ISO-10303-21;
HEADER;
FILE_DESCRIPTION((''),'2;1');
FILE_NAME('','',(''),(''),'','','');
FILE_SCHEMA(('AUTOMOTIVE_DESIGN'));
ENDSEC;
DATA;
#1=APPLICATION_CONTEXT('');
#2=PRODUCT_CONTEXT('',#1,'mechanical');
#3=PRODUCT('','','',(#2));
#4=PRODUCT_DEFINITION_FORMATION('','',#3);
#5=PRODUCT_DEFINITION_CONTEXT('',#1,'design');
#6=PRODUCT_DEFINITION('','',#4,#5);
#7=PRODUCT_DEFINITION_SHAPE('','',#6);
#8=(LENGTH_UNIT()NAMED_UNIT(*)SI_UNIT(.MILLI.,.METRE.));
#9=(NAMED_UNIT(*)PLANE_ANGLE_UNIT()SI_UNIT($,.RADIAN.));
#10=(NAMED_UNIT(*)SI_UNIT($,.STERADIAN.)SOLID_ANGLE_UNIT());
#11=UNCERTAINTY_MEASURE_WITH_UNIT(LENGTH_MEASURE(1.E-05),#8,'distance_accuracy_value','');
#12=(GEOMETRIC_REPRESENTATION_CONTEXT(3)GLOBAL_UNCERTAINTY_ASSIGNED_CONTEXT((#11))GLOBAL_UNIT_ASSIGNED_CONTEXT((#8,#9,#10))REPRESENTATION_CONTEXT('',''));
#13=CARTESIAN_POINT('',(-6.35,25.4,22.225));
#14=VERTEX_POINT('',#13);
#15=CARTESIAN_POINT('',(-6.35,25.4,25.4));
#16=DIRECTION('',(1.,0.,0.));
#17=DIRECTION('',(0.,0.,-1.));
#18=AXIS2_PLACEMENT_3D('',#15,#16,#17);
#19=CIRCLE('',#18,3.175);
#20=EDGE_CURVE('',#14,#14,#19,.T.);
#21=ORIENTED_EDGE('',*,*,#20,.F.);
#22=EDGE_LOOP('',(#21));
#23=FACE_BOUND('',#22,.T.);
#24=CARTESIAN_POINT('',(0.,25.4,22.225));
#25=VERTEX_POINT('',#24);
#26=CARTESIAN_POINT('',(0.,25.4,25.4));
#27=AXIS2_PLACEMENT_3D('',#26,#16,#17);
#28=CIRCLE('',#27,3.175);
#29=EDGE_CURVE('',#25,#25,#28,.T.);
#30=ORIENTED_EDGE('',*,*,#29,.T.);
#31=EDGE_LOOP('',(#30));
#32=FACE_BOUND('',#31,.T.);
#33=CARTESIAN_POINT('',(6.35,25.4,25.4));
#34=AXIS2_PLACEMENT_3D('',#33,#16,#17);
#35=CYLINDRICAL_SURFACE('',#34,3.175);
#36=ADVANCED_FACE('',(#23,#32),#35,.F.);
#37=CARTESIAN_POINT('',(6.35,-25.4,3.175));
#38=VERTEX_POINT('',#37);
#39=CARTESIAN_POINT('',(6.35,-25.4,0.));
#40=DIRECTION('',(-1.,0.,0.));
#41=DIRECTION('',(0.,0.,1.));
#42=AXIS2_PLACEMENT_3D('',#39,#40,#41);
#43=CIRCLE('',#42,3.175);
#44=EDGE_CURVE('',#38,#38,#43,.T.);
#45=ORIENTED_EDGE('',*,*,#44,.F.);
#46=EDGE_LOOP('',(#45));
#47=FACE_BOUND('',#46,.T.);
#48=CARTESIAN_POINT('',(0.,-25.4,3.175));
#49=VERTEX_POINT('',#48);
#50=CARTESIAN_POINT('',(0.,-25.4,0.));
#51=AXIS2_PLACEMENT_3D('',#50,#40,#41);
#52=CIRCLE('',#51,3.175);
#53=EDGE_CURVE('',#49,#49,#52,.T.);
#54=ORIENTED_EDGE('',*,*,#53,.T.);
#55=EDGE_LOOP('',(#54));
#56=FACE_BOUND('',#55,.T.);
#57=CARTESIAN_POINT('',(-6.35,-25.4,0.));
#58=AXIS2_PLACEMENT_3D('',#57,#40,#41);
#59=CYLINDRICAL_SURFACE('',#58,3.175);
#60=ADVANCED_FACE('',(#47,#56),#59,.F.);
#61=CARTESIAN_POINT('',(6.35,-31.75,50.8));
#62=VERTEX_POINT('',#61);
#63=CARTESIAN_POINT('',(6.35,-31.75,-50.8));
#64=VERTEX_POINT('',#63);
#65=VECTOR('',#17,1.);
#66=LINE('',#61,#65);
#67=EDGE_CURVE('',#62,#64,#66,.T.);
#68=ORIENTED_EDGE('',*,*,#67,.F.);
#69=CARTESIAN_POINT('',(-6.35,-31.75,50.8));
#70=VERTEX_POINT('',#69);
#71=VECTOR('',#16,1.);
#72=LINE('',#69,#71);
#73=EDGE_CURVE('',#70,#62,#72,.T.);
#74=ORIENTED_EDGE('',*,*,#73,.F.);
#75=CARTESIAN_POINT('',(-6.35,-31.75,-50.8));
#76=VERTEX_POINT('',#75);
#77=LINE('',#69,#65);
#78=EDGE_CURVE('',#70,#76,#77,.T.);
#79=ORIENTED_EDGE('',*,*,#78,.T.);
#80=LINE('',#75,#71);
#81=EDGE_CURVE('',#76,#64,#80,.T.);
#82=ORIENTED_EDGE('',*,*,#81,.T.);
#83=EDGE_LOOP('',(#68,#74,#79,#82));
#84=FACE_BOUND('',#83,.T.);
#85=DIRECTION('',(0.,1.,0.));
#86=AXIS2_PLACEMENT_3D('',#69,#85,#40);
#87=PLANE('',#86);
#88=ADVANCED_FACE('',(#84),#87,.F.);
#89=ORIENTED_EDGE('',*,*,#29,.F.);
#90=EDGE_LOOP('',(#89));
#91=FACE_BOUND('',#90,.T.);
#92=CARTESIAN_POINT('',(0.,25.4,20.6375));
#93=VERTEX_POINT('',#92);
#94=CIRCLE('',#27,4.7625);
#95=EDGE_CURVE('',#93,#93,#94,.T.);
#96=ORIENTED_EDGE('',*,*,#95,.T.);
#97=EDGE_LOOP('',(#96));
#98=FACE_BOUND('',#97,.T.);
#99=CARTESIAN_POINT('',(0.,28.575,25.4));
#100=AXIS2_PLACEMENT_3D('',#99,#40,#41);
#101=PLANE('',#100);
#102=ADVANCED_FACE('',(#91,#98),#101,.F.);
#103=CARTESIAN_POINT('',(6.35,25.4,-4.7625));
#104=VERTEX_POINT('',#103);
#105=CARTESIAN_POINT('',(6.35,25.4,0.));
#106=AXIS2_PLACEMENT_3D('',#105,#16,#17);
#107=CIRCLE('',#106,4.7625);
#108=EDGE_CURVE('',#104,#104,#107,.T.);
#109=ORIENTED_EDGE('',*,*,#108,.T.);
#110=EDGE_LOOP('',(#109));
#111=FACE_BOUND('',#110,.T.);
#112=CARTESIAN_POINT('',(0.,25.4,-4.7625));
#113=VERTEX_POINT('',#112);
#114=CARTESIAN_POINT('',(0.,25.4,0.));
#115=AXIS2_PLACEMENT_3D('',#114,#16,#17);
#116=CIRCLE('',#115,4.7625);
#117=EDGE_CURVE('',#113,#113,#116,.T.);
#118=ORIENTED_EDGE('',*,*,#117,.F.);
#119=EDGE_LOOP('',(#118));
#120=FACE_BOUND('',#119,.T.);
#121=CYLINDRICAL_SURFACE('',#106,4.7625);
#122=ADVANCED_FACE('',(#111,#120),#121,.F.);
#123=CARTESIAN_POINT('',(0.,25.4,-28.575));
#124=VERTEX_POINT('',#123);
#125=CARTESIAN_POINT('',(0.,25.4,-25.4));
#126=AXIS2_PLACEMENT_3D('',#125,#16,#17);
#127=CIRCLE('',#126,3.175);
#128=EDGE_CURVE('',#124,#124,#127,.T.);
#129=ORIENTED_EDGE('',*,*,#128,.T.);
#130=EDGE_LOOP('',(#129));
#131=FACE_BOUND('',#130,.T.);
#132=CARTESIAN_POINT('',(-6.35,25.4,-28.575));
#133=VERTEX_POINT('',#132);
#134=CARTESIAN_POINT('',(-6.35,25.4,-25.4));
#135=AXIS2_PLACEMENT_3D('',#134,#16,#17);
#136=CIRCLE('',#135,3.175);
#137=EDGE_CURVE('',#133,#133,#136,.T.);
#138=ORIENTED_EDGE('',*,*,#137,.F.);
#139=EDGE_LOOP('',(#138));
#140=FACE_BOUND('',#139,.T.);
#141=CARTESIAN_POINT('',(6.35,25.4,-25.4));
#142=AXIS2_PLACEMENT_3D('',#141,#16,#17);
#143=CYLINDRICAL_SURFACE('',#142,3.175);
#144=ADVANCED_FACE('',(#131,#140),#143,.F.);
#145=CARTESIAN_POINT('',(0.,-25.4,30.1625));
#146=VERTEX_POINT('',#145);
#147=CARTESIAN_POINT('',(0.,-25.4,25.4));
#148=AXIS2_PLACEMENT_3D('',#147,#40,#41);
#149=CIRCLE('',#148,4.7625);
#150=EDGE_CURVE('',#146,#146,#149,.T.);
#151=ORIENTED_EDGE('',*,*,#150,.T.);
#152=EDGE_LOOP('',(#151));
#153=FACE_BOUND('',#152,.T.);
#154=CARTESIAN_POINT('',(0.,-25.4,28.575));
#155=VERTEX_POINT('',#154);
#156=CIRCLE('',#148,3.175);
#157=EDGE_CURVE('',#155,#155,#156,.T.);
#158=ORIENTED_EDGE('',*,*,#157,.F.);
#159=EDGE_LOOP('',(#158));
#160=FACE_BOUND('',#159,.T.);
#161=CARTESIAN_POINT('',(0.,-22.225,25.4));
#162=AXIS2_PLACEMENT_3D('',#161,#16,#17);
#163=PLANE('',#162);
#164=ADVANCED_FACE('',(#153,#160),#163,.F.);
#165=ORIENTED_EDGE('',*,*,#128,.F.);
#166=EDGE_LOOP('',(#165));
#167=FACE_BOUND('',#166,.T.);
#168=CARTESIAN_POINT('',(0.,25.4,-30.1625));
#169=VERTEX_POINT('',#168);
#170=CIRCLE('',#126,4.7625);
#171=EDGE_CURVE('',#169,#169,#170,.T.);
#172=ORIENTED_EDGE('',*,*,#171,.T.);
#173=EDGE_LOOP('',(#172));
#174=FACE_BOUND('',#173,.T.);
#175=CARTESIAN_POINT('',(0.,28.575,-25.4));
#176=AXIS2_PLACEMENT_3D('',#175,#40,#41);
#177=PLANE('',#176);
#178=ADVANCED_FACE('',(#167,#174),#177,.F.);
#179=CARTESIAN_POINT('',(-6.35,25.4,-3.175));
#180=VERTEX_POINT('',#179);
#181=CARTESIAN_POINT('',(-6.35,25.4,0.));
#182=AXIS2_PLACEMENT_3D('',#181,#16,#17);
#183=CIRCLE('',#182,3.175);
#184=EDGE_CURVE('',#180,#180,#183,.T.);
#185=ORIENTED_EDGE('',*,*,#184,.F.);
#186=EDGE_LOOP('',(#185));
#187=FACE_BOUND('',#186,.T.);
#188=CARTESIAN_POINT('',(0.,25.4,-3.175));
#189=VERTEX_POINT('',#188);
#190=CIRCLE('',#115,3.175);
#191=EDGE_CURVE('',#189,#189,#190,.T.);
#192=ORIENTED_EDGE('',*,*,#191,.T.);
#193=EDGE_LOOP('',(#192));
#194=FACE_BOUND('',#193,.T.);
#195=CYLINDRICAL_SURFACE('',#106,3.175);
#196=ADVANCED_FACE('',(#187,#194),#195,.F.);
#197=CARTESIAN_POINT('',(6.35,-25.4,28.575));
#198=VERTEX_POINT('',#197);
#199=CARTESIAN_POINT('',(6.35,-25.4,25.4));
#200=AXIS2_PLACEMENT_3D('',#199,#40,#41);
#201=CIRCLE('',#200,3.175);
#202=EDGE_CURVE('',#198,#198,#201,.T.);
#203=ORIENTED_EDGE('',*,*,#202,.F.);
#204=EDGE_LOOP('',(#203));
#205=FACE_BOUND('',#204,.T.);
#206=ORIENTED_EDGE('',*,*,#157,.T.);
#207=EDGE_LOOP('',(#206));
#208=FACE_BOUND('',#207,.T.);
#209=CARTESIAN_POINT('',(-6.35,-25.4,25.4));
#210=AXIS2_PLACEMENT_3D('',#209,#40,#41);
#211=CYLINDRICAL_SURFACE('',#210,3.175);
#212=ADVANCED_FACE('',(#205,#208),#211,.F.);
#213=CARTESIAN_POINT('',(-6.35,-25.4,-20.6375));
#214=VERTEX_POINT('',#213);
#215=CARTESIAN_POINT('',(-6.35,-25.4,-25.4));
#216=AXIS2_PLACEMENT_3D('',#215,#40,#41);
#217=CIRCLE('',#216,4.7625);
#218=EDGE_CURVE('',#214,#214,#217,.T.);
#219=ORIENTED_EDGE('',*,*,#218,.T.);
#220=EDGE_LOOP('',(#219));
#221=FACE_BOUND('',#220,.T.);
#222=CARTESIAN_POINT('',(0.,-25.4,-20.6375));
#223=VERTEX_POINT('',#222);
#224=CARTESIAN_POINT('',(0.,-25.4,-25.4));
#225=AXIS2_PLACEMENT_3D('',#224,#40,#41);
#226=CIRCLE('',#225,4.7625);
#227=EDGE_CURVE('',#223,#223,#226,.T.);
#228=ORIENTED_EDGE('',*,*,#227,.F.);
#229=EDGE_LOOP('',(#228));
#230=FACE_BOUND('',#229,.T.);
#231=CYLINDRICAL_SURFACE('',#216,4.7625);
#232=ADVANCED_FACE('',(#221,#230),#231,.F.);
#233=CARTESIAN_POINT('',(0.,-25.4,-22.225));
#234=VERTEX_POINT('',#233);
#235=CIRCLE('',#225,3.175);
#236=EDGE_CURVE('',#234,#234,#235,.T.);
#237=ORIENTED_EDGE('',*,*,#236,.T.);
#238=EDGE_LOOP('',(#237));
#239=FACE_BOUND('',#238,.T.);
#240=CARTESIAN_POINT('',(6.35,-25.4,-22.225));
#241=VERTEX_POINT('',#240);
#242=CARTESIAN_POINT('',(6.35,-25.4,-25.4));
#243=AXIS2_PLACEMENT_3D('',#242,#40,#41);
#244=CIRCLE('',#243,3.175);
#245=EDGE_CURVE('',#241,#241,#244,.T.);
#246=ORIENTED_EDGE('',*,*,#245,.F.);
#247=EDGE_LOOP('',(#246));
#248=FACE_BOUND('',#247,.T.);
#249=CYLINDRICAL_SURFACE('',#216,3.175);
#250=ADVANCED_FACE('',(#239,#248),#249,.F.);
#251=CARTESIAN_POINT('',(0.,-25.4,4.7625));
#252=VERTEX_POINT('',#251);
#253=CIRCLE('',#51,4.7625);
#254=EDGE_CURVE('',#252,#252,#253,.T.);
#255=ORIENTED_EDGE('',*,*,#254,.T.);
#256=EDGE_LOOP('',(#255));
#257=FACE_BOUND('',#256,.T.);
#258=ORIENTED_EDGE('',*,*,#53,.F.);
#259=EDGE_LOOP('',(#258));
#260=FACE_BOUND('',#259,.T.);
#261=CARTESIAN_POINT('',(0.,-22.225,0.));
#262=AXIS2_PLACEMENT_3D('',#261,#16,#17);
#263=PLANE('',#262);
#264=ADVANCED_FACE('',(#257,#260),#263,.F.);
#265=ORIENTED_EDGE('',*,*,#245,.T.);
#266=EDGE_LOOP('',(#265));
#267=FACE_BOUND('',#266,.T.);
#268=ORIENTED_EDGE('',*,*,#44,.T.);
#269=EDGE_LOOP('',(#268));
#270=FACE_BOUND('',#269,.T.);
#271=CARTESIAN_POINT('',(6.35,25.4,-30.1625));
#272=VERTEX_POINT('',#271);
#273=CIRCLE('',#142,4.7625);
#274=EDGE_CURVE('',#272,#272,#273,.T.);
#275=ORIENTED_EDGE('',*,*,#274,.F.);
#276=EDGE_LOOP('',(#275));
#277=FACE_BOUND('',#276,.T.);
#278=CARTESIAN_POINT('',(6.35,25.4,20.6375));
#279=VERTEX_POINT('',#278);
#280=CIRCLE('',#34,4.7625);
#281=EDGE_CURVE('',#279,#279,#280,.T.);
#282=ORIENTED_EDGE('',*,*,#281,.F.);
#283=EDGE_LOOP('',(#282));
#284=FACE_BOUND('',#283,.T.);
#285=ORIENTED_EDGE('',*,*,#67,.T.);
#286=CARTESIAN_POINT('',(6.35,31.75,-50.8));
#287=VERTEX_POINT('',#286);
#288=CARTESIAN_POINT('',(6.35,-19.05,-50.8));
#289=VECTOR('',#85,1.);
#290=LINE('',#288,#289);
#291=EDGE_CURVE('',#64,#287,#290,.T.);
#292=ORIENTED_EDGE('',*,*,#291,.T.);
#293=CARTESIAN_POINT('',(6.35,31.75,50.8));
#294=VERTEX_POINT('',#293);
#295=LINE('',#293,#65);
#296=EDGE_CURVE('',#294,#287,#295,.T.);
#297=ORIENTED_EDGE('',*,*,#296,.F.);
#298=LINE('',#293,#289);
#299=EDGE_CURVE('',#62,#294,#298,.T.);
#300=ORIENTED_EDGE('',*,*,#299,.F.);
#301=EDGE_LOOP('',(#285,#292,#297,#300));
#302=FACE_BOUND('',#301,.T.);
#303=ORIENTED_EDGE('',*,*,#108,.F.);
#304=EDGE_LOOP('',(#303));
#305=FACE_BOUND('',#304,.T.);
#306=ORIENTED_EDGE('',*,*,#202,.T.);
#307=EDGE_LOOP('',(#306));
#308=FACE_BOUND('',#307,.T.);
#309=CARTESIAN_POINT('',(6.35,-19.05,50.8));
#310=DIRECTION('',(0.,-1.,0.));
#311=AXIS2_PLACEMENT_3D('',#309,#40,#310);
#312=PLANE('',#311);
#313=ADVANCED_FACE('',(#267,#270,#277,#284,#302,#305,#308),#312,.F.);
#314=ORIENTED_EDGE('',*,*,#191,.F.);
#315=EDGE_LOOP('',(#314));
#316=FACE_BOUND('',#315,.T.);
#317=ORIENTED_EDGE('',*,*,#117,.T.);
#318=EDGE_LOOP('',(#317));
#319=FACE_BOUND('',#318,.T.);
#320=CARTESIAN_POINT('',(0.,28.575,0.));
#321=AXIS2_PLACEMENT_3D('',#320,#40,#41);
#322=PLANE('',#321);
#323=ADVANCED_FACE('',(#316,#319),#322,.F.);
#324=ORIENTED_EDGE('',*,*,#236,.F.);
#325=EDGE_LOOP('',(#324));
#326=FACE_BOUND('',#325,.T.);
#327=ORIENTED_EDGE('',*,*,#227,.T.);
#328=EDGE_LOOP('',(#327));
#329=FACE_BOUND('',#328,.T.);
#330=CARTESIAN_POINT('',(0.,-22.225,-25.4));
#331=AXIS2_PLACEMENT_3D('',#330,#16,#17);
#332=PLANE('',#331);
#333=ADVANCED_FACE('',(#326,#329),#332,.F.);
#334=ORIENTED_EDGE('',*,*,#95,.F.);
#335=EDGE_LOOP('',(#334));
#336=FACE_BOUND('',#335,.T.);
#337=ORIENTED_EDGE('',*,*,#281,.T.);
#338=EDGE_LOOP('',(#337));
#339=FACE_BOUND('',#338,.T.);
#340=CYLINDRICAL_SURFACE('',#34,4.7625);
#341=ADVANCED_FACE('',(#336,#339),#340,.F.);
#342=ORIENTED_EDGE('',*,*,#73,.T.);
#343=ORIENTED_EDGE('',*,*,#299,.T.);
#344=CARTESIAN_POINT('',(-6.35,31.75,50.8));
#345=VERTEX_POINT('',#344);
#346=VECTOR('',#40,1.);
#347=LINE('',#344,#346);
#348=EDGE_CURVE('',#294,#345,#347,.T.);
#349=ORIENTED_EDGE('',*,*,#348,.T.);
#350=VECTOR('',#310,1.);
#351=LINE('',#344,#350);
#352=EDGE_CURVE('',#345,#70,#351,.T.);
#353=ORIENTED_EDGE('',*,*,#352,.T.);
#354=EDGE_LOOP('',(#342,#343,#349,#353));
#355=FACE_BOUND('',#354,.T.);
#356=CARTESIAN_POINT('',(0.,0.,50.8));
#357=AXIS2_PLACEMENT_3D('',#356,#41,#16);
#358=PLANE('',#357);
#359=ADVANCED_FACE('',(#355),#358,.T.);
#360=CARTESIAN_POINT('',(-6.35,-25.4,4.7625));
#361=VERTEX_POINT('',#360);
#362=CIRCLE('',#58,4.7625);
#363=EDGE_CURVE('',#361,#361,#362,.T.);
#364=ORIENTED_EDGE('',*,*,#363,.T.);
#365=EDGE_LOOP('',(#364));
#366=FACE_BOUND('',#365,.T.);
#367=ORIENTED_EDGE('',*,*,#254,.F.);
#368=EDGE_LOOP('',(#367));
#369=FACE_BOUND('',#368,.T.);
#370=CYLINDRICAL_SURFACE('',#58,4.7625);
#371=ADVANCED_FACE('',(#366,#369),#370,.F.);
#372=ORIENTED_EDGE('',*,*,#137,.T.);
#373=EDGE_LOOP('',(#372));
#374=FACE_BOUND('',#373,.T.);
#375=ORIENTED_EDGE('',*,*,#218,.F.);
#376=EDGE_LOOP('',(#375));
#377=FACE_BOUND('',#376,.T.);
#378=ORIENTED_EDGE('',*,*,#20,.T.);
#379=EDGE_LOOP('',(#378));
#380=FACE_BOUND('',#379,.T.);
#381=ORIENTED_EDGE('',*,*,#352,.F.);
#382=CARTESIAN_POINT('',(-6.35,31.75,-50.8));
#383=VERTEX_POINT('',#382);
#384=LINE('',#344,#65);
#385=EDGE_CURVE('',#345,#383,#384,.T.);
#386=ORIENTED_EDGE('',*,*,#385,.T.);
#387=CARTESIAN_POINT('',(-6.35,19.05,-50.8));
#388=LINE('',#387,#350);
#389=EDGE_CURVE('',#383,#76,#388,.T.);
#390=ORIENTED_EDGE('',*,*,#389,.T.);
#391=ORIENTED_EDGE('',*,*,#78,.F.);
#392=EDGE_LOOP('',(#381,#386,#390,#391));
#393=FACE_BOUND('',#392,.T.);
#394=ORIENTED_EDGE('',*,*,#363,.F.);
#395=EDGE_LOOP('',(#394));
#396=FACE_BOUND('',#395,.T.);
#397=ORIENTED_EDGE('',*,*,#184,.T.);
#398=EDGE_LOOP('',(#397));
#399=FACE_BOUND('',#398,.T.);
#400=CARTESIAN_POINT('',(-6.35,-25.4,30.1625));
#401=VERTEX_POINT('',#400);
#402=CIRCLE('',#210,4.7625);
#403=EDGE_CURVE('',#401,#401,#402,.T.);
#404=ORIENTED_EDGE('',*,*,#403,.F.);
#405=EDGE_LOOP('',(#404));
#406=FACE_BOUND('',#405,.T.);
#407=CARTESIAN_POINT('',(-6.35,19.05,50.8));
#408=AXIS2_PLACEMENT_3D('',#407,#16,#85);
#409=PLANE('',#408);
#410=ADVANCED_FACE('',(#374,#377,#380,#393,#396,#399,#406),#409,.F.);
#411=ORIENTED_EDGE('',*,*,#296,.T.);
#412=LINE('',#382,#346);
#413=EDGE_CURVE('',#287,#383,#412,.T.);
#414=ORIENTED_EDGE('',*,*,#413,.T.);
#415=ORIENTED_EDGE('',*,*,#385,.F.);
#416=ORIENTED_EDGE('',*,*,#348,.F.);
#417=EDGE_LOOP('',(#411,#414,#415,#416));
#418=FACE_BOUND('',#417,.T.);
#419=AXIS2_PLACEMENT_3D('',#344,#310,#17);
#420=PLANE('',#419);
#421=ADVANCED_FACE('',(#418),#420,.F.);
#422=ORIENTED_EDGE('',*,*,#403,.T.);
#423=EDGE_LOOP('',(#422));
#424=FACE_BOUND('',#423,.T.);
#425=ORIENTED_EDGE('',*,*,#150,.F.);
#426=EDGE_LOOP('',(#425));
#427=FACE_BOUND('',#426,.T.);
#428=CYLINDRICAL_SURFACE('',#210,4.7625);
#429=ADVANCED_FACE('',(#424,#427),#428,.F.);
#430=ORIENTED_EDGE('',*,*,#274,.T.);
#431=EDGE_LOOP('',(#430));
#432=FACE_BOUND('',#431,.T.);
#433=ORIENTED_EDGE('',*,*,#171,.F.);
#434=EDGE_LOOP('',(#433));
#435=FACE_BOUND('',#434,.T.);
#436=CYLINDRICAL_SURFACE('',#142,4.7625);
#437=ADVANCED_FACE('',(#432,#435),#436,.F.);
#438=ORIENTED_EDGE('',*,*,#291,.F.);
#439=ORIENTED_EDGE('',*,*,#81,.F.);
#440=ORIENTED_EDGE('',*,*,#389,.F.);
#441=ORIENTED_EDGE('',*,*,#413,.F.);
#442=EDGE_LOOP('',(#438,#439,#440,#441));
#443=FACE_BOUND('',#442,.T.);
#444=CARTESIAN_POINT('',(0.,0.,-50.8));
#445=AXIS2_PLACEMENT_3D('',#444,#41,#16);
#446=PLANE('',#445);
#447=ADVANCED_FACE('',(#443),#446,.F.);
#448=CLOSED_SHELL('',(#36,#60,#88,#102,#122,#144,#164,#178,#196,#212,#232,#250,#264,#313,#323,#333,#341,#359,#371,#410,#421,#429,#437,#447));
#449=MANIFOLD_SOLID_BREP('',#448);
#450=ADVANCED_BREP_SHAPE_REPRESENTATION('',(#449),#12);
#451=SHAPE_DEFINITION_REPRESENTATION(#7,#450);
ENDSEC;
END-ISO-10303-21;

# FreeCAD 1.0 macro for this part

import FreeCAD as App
import Part
import Sketcher

V = App.Vector
Q = App.Units.Quantity

doc = App.newDocument("Part")
body = doc.addObject("PartDesign::Body", "Body")

# Sketch on XY plane
sketch1 = body.newObject("Sketcher::SketchObject", "Sketch")
sketch1.AttachmentSupport = (doc.getObject("XY_Plane"), [""])
sketch1.MapMode = "FlatFace"
sketch1.addGeometry(Part.LineSegment(V(6.35, 31.75, 0), V(-6.35, 31.75, 0)), False)
sketch1.addGeometry(Part.LineSegment(V(-6.35, 31.75, 0), V(-6.35, -31.75, 0)), False)
sketch1.addGeometry(Part.LineSegment(V(-6.35, -31.75, 0), V(6.35, -31.75, 0)), False)
sketch1.addGeometry(Part.LineSegment(V(6.35, -31.75, 0), V(6.35, 31.75, 0)), False)
sketch1.addConstraint(Sketcher.Constraint("Coincident", 0, 2, 1, 1))
sketch1.addConstraint(Sketcher.Constraint("Coincident", 1, 2, 2, 1))
sketch1.addConstraint(Sketcher.Constraint("Coincident", 2, 2, 3, 1))
sketch1.addConstraint(Sketcher.Constraint("Coincident", 3, 2, 0, 1))
sketch1.addConstraint(Sketcher.Constraint("Horizontal", 0))
sketch1.addConstraint(Sketcher.Constraint("Vertical", 1))
sketch1.addConstraint(Sketcher.Constraint("Horizontal", 2))
sketch1.addConstraint(Sketcher.Constraint("Vertical", 3))
sketch1.addConstraint(Sketcher.Constraint("Symmetric", 0, 2, 2, 2, -1, 1))
sketch1.addConstraint(Sketcher.Constraint("DistanceX", 0, 2, 0, 1, Q("0.5 in")))
sketch1.addConstraint(Sketcher.Constraint("DistanceY", 1, 2, 1, 1, Q("2.5 in")))
pad1 = body.newObject("PartDesign::Pad", "Pad")
pad1.Profile = sketch1
pad1.Length = Q("4 in")
pad1.Midplane = True

# Sketch on YZ plane
sketch2 = body.newObject("Sketcher::SketchObject", "Sketch001")
sketch2.AttachmentSupport = (doc.getObject("YZ_Plane"), [""])
sketch2.MapMode = "FlatFace"
sketch2.AttachmentOffset = App.Placement(V(0, 0, -0.25 * 25.4), App.Rotation())
sketch2.addGeometry(Part.Circle(V(-25.4, -25.4, 0), V(0, 0, 1), 3.175), False)
sketch2.addGeometry(Part.Circle(V(-25.4, 0, 0), V(0, 0, 1), 3.175), False)
sketch2.addGeometry(Part.Circle(V(-25.4, 25.4, 0), V(0, 0, 1), 3.175), False)
sketch2.addConstraint(Sketcher.Constraint("Equal", 0, 1))
sketch2.addConstraint(Sketcher.Constraint("Equal", 1, 2))
sketch2.addConstraint(Sketcher.Constraint("Symmetric", 0, 3, 2, 3, -1))
sketch2.addConstraint(Sketcher.Constraint("PointOnObject", 1, 3, -1))
sketch2.addConstraint(Sketcher.Constraint("Vertical", 0, 3, 1, 3))
sketch2.addConstraint(Sketcher.Constraint("Diameter", 0, Q("0.25 in")))
sketch2.addConstraint(Sketcher.Constraint("DistanceX", 0, 3, -1, 1, Q("1 in")))
sketch2.addConstraint(Sketcher.Constraint("DistanceY", 0, 3, -1, 1, Q("1 in")))
doc.recompute()
hole = body.newObject("PartDesign::Hole", "Hole")
hole.Profile = sketch2
hole.ThreadType = "None"
hole.Diameter = Q("0.25 in")
hole.DepthType = "ThroughAll"
hole.HoleCutType = "Counterbore"
hole.HoleCutDiameter = Q("0.375 in")
hole.HoleCutDepth = Q("0.25 in")
hole.Reversed = True

# Sketch on YZ plane
sketch3 = body.newObject("Sketcher::SketchObject", "Sketch002")
sketch3.AttachmentSupport = (doc.getObject("YZ_Plane"), [""])
sketch3.MapMode = "FlatFace"
sketch3.AttachmentOffset = App.Placement(V(0, 0, 0.25 * 25.4), App.Rotation())
sketch3.addGeometry(Part.Circle(V(25.4, 25.4, 0), V(0, 0, 1), 3.175), False)
sketch3.addGeometry(Part.Circle(V(25.4, 0, 0), V(0, 0, 1), 3.175), False)
sketch3.addGeometry(Part.Circle(V(25.4, -25.4, 0), V(0, 0, 1), 3.175), False)
sketch3.addConstraint(Sketcher.Constraint("Equal", 0, 1))
sketch3.addConstraint(Sketcher.Constraint("Equal", 1, 2))
sketch3.addConstraint(Sketcher.Constraint("Symmetric", 0, 3, 2, 3, -1))
sketch3.addConstraint(Sketcher.Constraint("PointOnObject", 1, 3, -1))
sketch3.addConstraint(Sketcher.Constraint("Vertical", 0, 3, 1, 3))
sketch3.addConstraint(Sketcher.Constraint("Diameter", 0, Q("0.25 in")))
sketch3.addConstraint(Sketcher.Constraint("DistanceX", -1, 1, 0, 3, Q("1 in")))
sketch3.addConstraint(Sketcher.Constraint("DistanceY", -1, 1, 0, 3, Q("1 in")))
doc.recompute()
hole2 = body.newObject("PartDesign::Hole", "Hole001")
hole2.Profile = sketch3
hole2.ThreadType = "None"
hole2.Diameter = Q("0.25 in")
hole2.DepthType = "ThroughAll"
hole2.HoleCutType = "Counterbore"
hole2.HoleCutDiameter = Q("0.375 in")
hole2.HoleCutDepth = Q("0.25 in")

doc.recompute()
